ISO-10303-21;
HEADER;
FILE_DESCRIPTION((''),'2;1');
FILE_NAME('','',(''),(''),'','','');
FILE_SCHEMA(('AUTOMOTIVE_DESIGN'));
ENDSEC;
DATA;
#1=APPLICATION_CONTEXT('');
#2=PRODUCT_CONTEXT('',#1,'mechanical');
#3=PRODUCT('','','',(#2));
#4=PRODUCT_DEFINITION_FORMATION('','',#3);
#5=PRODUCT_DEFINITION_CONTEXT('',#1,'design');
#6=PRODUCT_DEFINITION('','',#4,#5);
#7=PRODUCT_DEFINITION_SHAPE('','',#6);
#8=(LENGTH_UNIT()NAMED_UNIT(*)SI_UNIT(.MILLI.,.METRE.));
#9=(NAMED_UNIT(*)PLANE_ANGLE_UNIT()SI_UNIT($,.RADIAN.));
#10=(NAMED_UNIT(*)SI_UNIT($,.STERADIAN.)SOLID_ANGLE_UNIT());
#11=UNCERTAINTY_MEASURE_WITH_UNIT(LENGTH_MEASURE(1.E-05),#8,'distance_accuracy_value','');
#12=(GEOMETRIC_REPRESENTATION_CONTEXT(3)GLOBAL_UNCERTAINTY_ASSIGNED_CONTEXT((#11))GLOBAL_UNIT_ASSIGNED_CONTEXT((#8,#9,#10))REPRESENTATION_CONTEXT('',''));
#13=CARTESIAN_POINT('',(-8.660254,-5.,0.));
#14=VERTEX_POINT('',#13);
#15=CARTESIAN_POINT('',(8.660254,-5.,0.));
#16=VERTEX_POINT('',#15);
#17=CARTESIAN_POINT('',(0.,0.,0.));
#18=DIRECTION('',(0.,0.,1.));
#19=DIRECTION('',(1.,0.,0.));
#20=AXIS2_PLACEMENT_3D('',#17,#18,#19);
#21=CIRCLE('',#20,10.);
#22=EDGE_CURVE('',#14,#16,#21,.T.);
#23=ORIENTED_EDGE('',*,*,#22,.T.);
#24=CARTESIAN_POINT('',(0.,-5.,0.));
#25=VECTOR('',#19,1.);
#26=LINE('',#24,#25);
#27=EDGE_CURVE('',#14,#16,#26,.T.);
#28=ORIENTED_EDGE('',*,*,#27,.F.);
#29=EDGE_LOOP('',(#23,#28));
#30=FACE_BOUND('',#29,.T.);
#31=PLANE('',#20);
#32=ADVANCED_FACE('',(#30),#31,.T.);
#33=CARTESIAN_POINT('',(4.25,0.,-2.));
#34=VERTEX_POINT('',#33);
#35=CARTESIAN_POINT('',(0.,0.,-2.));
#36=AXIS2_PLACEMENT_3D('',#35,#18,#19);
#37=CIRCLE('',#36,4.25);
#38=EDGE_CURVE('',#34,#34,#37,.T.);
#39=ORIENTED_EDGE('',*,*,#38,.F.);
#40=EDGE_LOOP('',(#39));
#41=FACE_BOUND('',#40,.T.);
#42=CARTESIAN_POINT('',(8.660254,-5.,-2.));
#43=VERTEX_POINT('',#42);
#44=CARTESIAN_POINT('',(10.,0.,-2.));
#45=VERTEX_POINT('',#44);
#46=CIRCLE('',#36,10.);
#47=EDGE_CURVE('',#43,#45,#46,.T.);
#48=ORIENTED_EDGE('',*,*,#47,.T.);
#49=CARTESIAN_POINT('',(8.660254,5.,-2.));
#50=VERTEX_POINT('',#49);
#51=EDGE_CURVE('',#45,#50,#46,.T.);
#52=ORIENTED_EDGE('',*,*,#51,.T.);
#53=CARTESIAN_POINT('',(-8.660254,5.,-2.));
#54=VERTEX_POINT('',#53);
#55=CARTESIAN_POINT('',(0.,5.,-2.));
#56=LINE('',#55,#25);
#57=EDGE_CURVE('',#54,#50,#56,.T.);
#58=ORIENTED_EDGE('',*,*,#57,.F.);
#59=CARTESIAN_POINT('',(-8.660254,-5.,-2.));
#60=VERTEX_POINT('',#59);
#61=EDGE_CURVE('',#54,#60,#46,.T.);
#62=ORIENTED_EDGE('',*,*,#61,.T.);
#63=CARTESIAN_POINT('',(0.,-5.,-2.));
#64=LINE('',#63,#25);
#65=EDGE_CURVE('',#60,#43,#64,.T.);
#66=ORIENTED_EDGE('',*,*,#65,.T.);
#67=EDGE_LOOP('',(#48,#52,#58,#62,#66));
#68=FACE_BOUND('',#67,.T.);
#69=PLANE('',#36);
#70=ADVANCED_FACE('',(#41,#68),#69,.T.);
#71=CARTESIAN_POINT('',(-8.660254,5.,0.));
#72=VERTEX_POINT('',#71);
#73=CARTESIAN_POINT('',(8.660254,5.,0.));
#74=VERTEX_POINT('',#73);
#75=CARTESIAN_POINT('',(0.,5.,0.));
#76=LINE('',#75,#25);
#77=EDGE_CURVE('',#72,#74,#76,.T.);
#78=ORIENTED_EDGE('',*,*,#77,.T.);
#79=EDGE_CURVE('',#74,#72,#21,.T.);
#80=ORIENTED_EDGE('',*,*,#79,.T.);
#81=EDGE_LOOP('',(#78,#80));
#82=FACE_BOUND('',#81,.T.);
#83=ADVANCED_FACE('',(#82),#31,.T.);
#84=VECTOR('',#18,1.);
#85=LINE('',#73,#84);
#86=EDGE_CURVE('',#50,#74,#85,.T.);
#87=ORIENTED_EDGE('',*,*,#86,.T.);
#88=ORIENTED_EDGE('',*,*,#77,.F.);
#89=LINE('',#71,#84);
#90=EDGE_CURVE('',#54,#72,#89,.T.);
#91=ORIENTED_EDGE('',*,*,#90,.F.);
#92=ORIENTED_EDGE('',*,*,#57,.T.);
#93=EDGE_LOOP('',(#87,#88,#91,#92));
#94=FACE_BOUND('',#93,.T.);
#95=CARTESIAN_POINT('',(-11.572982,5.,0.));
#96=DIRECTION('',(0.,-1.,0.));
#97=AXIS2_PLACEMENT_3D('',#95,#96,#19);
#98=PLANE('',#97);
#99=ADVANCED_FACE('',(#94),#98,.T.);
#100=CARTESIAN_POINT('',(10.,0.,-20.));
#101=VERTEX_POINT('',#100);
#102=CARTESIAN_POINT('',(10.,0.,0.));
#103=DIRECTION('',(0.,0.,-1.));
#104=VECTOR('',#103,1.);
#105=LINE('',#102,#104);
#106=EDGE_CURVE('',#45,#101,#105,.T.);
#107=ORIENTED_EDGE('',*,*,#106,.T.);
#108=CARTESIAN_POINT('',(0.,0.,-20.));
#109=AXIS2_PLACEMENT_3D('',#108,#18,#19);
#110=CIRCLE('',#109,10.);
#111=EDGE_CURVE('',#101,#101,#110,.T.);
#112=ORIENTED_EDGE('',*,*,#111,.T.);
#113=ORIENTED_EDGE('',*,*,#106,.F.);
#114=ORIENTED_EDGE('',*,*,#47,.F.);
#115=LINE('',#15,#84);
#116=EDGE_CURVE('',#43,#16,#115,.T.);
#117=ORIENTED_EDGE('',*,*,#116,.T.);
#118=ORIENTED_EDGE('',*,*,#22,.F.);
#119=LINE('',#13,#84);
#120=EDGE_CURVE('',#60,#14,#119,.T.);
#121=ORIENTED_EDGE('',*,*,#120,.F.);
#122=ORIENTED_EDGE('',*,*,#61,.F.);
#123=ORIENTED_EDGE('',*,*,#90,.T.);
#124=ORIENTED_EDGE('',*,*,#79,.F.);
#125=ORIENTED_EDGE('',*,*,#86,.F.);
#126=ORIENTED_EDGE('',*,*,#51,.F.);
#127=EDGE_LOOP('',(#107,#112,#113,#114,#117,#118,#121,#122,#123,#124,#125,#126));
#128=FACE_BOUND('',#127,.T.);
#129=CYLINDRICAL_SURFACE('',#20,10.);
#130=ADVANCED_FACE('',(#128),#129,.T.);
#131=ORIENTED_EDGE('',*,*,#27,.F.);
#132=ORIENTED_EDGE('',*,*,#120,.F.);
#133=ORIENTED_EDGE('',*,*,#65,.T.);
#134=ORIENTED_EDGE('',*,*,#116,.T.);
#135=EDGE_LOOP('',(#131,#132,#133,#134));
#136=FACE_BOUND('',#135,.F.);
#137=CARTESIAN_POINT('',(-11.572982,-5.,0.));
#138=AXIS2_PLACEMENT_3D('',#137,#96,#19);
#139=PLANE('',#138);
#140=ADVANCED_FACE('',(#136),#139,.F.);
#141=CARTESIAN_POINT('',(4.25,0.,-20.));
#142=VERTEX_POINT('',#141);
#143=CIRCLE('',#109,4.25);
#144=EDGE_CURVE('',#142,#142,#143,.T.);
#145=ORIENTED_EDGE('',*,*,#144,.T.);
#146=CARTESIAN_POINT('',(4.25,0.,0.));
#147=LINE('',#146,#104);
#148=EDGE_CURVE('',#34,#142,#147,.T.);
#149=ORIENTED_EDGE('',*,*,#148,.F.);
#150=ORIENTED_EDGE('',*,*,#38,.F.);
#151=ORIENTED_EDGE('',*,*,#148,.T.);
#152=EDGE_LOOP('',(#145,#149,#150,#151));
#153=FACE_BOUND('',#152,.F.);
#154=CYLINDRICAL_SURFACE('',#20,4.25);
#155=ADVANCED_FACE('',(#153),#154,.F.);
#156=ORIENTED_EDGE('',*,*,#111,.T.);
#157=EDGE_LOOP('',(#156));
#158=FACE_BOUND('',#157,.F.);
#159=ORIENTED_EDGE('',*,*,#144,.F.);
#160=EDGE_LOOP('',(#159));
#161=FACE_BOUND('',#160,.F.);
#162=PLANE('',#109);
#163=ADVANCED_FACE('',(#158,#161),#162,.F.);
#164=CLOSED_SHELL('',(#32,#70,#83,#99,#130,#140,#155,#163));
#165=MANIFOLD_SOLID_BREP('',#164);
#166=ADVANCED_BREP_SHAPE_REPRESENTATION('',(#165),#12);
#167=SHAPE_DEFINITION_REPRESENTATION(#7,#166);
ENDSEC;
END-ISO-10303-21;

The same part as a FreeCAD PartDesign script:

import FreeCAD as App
import Part
import Sketcher

V = App.Vector
Q = App.Units.Quantity

doc = App.newDocument("Part")
body = doc.addObject("PartDesign::Body", "Body")

sketch1 = body.newObject("Sketcher::SketchObject", "Sketch")
sketch1.AttachmentSupport = (doc.getObject("XY_Plane"), [""])
sketch1.MapMode = "FlatFace"
sketch1.addGeometry(Part.Circle(V(0, 0, 0), V(0, 0, 1), 10), False)
sketch1.addConstraint([
    Sketcher.Constraint("Coincident", 0, 3, -1, 1),
    Sketcher.Constraint("Diameter", 0, Q("20 mm")),
])
pad1 = body.newObject("PartDesign::Pad", "Pad")
pad1.Profile = sketch1
pad1.Length = 20
pad1.Reversed = True

sketch2 = body.newObject("Sketcher::SketchObject", "Sketch001")
sketch2.AttachmentSupport = (doc.getObject("XY_Plane"), [""])
sketch2.MapMode = "FlatFace"
sketch2.addGeometry(Part.Circle(V(0, 0, 0), V(0, 0, 1), 4.25), False)
sketch2.addConstraint([
    Sketcher.Constraint("Coincident", 0, 3, -1, 1),
    Sketcher.Constraint("Diameter", 0, Q("8.5 mm")),
])
pocket1 = body.newObject("PartDesign::Pocket", "Pocket")
pocket1.Profile = sketch2
pocket1.Type = "ThroughAll"

sketch3 = body.newObject("Sketcher::SketchObject", "Sketch002")
sketch3.AttachmentSupport = (doc.getObject("XY_Plane"), [""])
sketch3.MapMode = "FlatFace"
sketch3.addGeometry([
    Part.LineSegment(V(-11.572982, 5, 0), V(-11.572982, -5, 0)),
    Part.LineSegment(V(-11.572982, -5, 0), V(11.572982, -5, 0)),
    Part.LineSegment(V(11.572982, -5, 0), V(11.572982, 5, 0)),
    Part.LineSegment(V(11.572982, 5, 0), V(-11.572982, 5, 0)),
], False)
sketch3.addConstraint([
    Sketcher.Constraint("Coincident", 0, 2, 1, 1),
    Sketcher.Constraint("Coincident", 1, 2, 2, 1),
    Sketcher.Constraint("Coincident", 2, 2, 3, 1),
    Sketcher.Constraint("Coincident", 3, 2, 0, 1),
    Sketcher.Constraint("Vertical", 0),
    Sketcher.Constraint("Horizontal", 1),
    Sketcher.Constraint("Vertical", 2),
    Sketcher.Constraint("Horizontal", 3),
    Sketcher.Constraint("Symmetric", 0, 2, 2, 2, -1, 1),
    Sketcher.Constraint("DistanceY", 0, 2, 0, 1, Q("10 mm")),
    Sketcher.Constraint("DistanceX", 1, 1, 1, 2, Q("23.145964 mm")),
])
pocket2 = body.newObject("PartDesign::Pocket", "Pocket001")
pocket2.Profile = sketch3
pocket2.Length = 2

doc.recompute()
